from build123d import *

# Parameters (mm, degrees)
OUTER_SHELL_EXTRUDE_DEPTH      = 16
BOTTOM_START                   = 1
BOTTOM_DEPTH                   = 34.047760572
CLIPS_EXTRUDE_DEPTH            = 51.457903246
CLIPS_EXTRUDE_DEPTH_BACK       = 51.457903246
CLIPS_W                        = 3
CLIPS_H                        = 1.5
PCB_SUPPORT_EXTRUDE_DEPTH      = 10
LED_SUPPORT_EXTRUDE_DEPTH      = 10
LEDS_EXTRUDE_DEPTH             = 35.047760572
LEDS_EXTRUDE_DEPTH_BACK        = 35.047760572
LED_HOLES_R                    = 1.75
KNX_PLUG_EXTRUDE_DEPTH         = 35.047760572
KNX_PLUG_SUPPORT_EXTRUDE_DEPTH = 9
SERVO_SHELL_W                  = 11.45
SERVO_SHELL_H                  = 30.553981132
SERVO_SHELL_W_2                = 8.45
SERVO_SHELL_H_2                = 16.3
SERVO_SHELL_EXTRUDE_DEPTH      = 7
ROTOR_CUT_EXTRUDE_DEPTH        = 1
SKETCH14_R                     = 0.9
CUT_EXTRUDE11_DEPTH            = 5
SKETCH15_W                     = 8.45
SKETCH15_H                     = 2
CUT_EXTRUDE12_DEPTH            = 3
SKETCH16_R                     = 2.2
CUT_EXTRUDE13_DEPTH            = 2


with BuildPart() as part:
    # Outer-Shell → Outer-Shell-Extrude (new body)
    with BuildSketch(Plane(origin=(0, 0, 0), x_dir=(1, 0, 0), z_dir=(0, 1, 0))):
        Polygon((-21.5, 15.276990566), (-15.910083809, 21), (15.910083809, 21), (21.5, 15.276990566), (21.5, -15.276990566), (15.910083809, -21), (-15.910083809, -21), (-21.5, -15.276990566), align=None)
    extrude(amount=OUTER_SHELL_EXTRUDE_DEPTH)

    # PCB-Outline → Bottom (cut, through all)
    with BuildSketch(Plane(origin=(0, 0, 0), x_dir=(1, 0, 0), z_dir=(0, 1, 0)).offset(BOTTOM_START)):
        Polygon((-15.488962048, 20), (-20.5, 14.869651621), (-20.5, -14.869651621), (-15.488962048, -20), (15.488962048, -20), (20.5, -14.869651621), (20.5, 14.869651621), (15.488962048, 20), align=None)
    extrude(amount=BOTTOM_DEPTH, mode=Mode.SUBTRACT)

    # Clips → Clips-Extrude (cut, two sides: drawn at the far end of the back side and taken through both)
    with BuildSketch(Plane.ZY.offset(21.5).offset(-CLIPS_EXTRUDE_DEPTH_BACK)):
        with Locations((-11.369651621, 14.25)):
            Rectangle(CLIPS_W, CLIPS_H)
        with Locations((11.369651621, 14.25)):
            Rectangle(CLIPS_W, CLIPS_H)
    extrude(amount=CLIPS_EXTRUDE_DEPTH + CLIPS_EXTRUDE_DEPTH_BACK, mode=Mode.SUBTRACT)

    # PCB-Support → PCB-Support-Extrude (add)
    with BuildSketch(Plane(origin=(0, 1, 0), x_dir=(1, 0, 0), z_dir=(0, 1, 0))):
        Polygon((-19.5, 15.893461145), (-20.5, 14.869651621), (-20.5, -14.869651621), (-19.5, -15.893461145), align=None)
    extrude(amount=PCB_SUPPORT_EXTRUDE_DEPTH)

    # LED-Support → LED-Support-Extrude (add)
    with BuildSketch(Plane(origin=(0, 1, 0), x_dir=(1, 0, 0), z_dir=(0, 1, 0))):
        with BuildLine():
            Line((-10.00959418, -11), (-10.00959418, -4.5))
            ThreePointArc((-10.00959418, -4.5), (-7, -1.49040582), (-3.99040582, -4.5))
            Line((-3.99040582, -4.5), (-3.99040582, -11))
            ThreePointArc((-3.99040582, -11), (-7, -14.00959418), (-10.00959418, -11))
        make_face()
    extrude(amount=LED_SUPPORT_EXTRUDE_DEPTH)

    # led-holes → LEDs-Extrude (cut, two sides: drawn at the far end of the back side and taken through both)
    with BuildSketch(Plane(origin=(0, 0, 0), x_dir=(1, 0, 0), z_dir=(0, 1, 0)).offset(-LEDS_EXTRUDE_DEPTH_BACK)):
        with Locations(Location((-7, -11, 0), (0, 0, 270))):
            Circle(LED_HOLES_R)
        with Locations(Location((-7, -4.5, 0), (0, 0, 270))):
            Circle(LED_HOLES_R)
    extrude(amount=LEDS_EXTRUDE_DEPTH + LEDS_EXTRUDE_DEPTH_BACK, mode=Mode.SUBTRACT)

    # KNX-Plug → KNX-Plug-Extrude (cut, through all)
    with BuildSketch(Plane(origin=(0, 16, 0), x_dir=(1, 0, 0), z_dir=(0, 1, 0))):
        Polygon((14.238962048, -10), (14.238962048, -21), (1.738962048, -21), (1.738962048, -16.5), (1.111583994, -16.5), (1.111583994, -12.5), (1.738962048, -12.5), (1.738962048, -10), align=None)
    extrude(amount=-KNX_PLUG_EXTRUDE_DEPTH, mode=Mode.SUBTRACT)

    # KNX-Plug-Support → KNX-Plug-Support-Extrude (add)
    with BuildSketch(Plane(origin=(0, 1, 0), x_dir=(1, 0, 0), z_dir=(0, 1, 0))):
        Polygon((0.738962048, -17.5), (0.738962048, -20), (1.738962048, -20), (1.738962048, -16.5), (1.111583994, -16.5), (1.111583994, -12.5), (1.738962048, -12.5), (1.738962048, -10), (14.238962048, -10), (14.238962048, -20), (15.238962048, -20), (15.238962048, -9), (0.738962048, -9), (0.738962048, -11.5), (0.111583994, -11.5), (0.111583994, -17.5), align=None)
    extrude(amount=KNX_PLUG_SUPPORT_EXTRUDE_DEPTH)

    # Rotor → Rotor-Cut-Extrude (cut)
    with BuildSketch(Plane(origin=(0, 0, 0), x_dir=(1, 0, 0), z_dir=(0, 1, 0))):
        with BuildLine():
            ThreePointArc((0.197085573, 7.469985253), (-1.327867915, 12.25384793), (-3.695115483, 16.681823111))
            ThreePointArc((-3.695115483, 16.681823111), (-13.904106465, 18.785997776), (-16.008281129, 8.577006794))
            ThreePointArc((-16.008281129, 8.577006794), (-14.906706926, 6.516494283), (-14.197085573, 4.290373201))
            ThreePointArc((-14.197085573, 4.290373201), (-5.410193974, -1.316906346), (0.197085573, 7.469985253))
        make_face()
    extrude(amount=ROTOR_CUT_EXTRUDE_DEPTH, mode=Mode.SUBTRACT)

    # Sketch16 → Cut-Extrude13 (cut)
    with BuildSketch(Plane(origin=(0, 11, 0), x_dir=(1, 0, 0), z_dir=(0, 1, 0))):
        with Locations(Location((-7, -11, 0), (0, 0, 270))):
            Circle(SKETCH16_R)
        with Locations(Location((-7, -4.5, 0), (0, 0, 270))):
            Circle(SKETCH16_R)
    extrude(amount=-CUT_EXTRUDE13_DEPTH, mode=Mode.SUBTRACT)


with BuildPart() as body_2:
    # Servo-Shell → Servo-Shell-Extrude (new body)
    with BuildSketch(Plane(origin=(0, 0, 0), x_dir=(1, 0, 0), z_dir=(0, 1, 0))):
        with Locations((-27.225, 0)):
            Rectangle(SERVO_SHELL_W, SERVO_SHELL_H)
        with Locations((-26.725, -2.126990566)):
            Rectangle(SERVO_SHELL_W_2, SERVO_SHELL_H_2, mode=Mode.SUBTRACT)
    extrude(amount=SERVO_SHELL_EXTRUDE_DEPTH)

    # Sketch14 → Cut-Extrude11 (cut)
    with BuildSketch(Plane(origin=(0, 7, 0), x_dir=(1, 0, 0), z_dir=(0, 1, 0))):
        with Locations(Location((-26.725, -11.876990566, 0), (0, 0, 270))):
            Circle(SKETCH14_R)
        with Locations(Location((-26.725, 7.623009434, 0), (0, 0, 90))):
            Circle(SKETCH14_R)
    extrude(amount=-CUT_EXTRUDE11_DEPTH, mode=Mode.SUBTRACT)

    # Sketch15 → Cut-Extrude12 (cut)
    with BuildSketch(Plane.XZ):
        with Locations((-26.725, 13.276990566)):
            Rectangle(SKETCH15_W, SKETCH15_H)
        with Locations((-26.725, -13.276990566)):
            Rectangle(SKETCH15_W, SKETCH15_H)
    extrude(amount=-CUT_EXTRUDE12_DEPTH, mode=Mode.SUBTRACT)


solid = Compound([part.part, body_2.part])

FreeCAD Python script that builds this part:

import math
import FreeCAD as App
import Part
import Sketcher
Q = App.Units.Quantity


def add_polygon(sketch, points):
    """Adds a closed chain of lines whose ends are joined by coincident constraints."""
    first, n = sketch.GeometryCount, len(points)
    for a, b in zip(points, points[1:] + points[:1]):
        sketch.addGeometry(Part.LineSegment(App.Vector(*a, 0), App.Vector(*b, 0)), False)
    for i in range(n):
        sketch.addConstraint(Sketcher.Constraint("Coincident", first + i, 2, first + (i + 1) % n, 1))

doc = App.newDocument("Part")
body = doc.addObject("PartDesign::Body", "Body")

sketch1 = doc.addObject("Sketcher::SketchObject", "Sketch")
body.addObject(sketch1)
sketch1.AttachmentSupport = (doc.XZ_Plane, [""])
sketch1.MapMode = "FlatFace"
add_polygon(sketch1, [(-16, -21), (-22, -15), (-22, 15), (-16, 21), (16, 21), (22, 15), (22, -15), (16, -21)])
sketch1.addConstraint([
    Sketcher.Constraint("Vertical", 1),
    Sketcher.Constraint("Horizontal", 3),
    Sketcher.Constraint("Vertical", 5),
    Sketcher.Constraint("Horizontal", 7),
    Sketcher.Constraint("Symmetric", 0, 2, 4, 2, -1, 1),
    Sketcher.Constraint("Symmetric", 2, 2, 6, 2, -1, 1),
    Sketcher.Constraint("Parallel", 0, 4),
    Sketcher.Constraint("Parallel", 2, 6),
    Sketcher.Constraint("Horizontal", 1, 2, 4, 2),
    Sketcher.Constraint("Vertical", 3, 2, 6, 2),
    Sketcher.Constraint("Distance", 0, Q("8 mm")),
    Sketcher.Constraint("DistanceY", -1, 1, 2, 2, Q("21 mm")),
    Sketcher.Constraint("DistanceX", 1, 2, 4, 2, Q("43 mm")),
    Sketcher.Constraint("DistanceY", 1, 1, 1, 2, Q("30.553981 mm")),
])
pad1 = doc.addObject("PartDesign::Pad", "Pad")
body.addObject(pad1)
pad1.Profile = sketch1
pad1.Length = 16
pad1.Reversed = True

sketch2 = doc.addObject("Sketcher::SketchObject", "Sketch001")
body.addObject(sketch2)
sketch2.AttachmentSupport = (doc.XZ_Plane, [""])
sketch2.MapMode = "FlatFace"
sketch2.AttachmentOffset = App.Placement(App.Vector(0, 0, -1), App.Rotation())
add_polygon(sketch2, [(-15, -20), (-20, -15), (-20, 15), (-15, 20), (15, 20), (20, 15), (20, -15), (15, -20)])
sketch2.addConstraint([
    Sketcher.Constraint("Vertical", 1),
    Sketcher.Constraint("Horizontal", 3),
    Sketcher.Constraint("Vertical", 5),
    Sketcher.Constraint("Horizontal", 7),
    Sketcher.Constraint("Symmetric", 0, 2, 4, 2, -1, 1),
    Sketcher.Constraint("Symmetric", 2, 2, 6, 2, -1, 1),
    Sketcher.Constraint("Parallel", 0, 4),
    Sketcher.Constraint("Parallel", 2, 6),
    Sketcher.Constraint("Horizontal", 1, 2, 4, 2),
    Sketcher.Constraint("Vertical", 3, 2, 6, 2),
    Sketcher.Constraint("DistanceY", -1, 1, 2, 2, Q("20 mm")),
    Sketcher.Constraint("DistanceX", 1, 2, 4, 2, Q("41 mm")),
    Sketcher.Constraint("Distance", 0, Q("7.171539 mm")),
    Sketcher.Constraint("DistanceX", 3, 1, 3, 2, Q("30.977924 mm")),
])
pocket1 = doc.addObject("PartDesign::Pocket", "Pocket")
body.addObject(pocket1)
pocket1.Profile = sketch2
pocket1.Type = "ThroughAll"

sketch3 = doc.addObject("Sketcher::SketchObject", "Sketch002")
body.addObject(sketch3)
sketch3.AttachmentSupport = (doc.YZ_Plane, [""])
sketch3.MapMode = "FlatFace"
sketch3.AttachmentOffset = App.Placement(App.Vector(0, 0, -21.5), App.Rotation())
add_polygon(sketch3, [(15, -12.9), (13.5, -12.9), (13.5, -9.9), (15, -9.9)])
add_polygon(sketch3, [(15, 9.9), (13.5, 9.9), (13.5, 12.9), (15, 12.9)])
sketch3.addConstraint([
    Sketcher.Constraint("Horizontal", 0),
    Sketcher.Constraint("Vertical", 1),
    Sketcher.Constraint("Horizontal", 2),
    Sketcher.Constraint("Vertical", 3),
    Sketcher.Constraint("Horizontal", 4),
    Sketcher.Constraint("Vertical", 5),
    Sketcher.Constraint("Horizontal", 6),
    Sketcher.Constraint("Vertical", 7),
    Sketcher.Constraint("Symmetric", 1, 2, 4, 2, -1),
    Sketcher.Constraint("Symmetric", 3, 2, 6, 2, -1),
    Sketcher.Constraint("DistanceY", 1, 1, 1, 2, Q("3 mm")),
    Sketcher.Constraint("DistanceX", 0, 2, 0, 1, Q("1.5 mm")),
    Sketcher.Constraint("DistanceX", -1, 1, 2, 2, Q("15 mm")),
    Sketcher.Constraint("DistanceY", 0, 2, -1, 1, Q("12.869652 mm")),
])
pocket2 = doc.addObject("PartDesign::Pocket", "Pocket001")
body.addObject(pocket2)
pocket2.Profile = sketch3
pocket2.Type = "ThroughAll"
pocket2.Midplane = True

sketch4 = doc.addObject("Sketcher::SketchObject", "Sketch003")
body.addObject(sketch4)
sketch4.AttachmentSupport = (doc.XZ_Plane, [""])
sketch4.MapMode = "FlatFace"
sketch4.AttachmentOffset = App.Placement(App.Vector(0, 0, -1), App.Rotation())
add_polygon(sketch4, [(-19.5, -15.9), (-20.5, -14.9), (-20.5, 14.9), (-19.5, 15.9)])
sketch4.addConstraint([
    Sketcher.Constraint("Vertical", 1),
    Sketcher.Constraint("Vertical", 3),
    Sketcher.Constraint("Equal", 0, 2),
    Sketcher.Constraint("DistanceX", 1, 2, 2, 2, Q("1 mm")),
    Sketcher.Constraint("DistanceX", 0, 2, -1, 1, Q("20.5 mm")),
    Sketcher.Constraint("Distance", 0, Q("1.431148 mm")),
    Sketcher.Constraint("DistanceY", 1, 1, 1, 2, Q("29.739303 mm")),
    Sketcher.Constraint("DistanceY", 0, 2, -1, 1, Q("14.869652 mm")),
])
pad2 = doc.addObject("PartDesign::Pad", "Pad001")
body.addObject(pad2)
pad2.Profile = sketch4
pad2.Length = 10
pad2.Reversed = True

sketch5 = doc.addObject("Sketcher::SketchObject", "Sketch004")
body.addObject(sketch5)
sketch5.AttachmentSupport = (doc.XZ_Plane, [""])
sketch5.MapMode = "FlatFace"
sketch5.AttachmentOffset = App.Placement(App.Vector(0, 0, -1), App.Rotation())
sketch5.addGeometry([
    Part.LineSegment(App.Vector(-10, 4.5, 0), App.Vector(-10, 11, 0)),
    Part.ArcOfCircle(Part.Circle(App.Vector(-7, 11, 0), App.Vector(0, 0, 1), 3), math.radians(0), math.radians(180)),
    Part.LineSegment(App.Vector(-4, 11, 0), App.Vector(-4, 4.5, 0)),
    Part.ArcOfCircle(Part.Circle(App.Vector(-7, 4.5, 0), App.Vector(0, 0, 1), 3), math.radians(180), math.radians(360)),
], False)
sketch5.addConstraint([
    Sketcher.Constraint("Tangent", 0, 2, 1, 2),
    Sketcher.Constraint("Tangent", 1, 1, 2, 1),
    Sketcher.Constraint("Tangent", 2, 2, 3, 2),
    Sketcher.Constraint("Tangent", 3, 1, 0, 1),
    Sketcher.Constraint("Vertical", 0),
    Sketcher.Constraint("Vertical", 2),
    Sketcher.Constraint("DistanceY", 0, 1, 0, 2, Q("6.5 mm")),
    Sketcher.Constraint("DistanceX", 1, 3, -1, 1, Q("7 mm")),
    Sketcher.Constraint("DistanceY", -1, 1, 1, 3, Q("11 mm")),
    Sketcher.Constraint("Radius", 1, Q("3.009594 mm")),
])
pad3 = doc.addObject("PartDesign::Pad", "Pad002")
body.addObject(pad3)
pad3.Profile = sketch5
pad3.Length = 10
pad3.Reversed = True

sketch6 = doc.addObject("Sketcher::SketchObject", "Sketch005")
body.addObject(sketch6)
sketch6.AttachmentSupport = (doc.XZ_Plane, [""])
sketch6.MapMode = "FlatFace"
sketch6.addGeometry([
    Part.Circle(App.Vector(-7, 11, 0), App.Vector(0, 0, 1), 1.8),
    Part.Circle(App.Vector(-7, 4.5, 0), App.Vector(0, 0, 1), 1.8),
], False)
sketch6.addConstraint([
    Sketcher.Constraint("Equal", 0, 1),
    Sketcher.Constraint("Vertical", 0, 3, 1, 3),
    Sketcher.Constraint("Diameter", 0, Q("3.5 mm")),
    Sketcher.Constraint("DistanceX", 0, 3, -1, 1, Q("7 mm")),
    Sketcher.Constraint("DistanceY", -1, 1, 0, 3, Q("11 mm")),
    Sketcher.Constraint("DistanceY", -1, 1, 1, 3, Q("4.5 mm")),
])
pocket3 = doc.addObject("PartDesign::Pocket", "Pocket002")
body.addObject(pocket3)
pocket3.Profile = sketch6
pocket3.Type = "ThroughAll"
pocket3.Midplane = True

sketch7 = doc.addObject("Sketcher::SketchObject", "Sketch006")
body.addObject(sketch7)
sketch7.AttachmentSupport = (doc.XZ_Plane, [""])
sketch7.MapMode = "FlatFace"
sketch7.AttachmentOffset = App.Placement(App.Vector(0, 0, -16), App.Rotation())
add_polygon(sketch7, [(14.2, 21), (14.2, 10), (1.7, 10), (1.7, 12.5), (1.1, 12.5), (1.1, 16.5), (1.7, 16.5), (1.7, 21)])
sketch7.addConstraint([
    Sketcher.Constraint("Vertical", 0),
    Sketcher.Constraint("Horizontal", 1),
    Sketcher.Constraint("Vertical", 2),
    Sketcher.Constraint("Horizontal", 3),
    Sketcher.Constraint("Vertical", 4),
    Sketcher.Constraint("Horizontal", 5),
    Sketcher.Constraint("Vertical", 6),
    Sketcher.Constraint("Horizontal", 7),
    Sketcher.Constraint("Vertical", 2, 2, 5, 2),
    Sketcher.Constraint("DistanceY", 0, 2, 0, 1, Q("11 mm")),
    Sketcher.Constraint("DistanceY", 4, 1, 4, 2, Q("4 mm")),
    Sketcher.Constraint("DistanceX", 1, 2, 1, 1, Q("12.5 mm")),
    Sketcher.Constraint("DistanceY", 2, 1, 2, 2, Q("2.5 mm")),
    Sketcher.Constraint("DistanceY", -1, 1, 0, 2, Q("10 mm")),
    Sketcher.Constraint("DistanceX", 3, 2, 3, 1, Q("0.627378 mm")),
    Sketcher.Constraint("DistanceX", -1, 1, 0, 2, Q("14.238962 mm")),
])
pocket4 = doc.addObject("PartDesign::Pocket", "Pocket003")
body.addObject(pocket4)
pocket4.Profile = sketch7
pocket4.Type = "ThroughAll"
pocket4.Reversed = True

sketch8 = doc.addObject("Sketcher::SketchObject", "Sketch007")
body.addObject(sketch8)
sketch8.AttachmentSupport = (doc.XZ_Plane, [""])
sketch8.MapMode = "FlatFace"
sketch8.AttachmentOffset = App.Placement(App.Vector(0, 0, -1), App.Rotation())
add_polygon(sketch8, [(0.7, 17.5), (0.7, 20), (1.7, 20), (1.7, 16.5), (1.1, 16.5), (1.1, 12.5), (1.7, 12.5), (1.7, 10), (14.2, 10), (14.2, 20), (15.2, 20), (15.2, 9), (0.7, 9), (0.7, 11.5), (0.1, 11.5), (0.1, 17.5)])
sketch8.addConstraint([
    Sketcher.Constraint("Vertical", 0),
    Sketcher.Constraint("Horizontal", 1),
    Sketcher.Constraint("Vertical", 2),
    Sketcher.Constraint("Horizontal", 3),
    Sketcher.Constraint("Vertical", 4),
    Sketcher.Constraint("Horizontal", 5),
    Sketcher.Constraint("Vertical", 6),
    Sketcher.Constraint("Horizontal", 7),
    Sketcher.Constraint("Vertical", 8),
    Sketcher.Constraint("Horizontal", 9),
    Sketcher.Constraint("Vertical", 10),
    Sketcher.Constraint("Horizontal", 11),
    Sketcher.Constraint("Vertical", 12),
    Sketcher.Constraint("Horizontal", 13),
    Sketcher.Constraint("Vertical", 14),
    Sketcher.Constraint("Horizontal", 15),
    Sketcher.Constraint("Horizontal", 1, 2, 8, 2),
    Sketcher.Constraint("Vertical", 2, 2, 5, 2),
    Sketcher.Constraint("Vertical", 0, 2, 11, 2),
    Sketcher.Constraint("Equal", 1, 9),
    Sketcher.Constraint("Equal", 5, 13),
    Sketcher.Constraint("Equal", 0, 6),
    Sketcher.Constraint("Equal", 6, 12),
    Sketcher.Constraint("DistanceX", 1, 1, 1, 2, Q("1 mm")),
    Sketcher.Constraint("DistanceY", 4, 2, 4, 1, Q("4 mm")),
    Sketcher.Constraint("DistanceY", 8, 1, 8, 2, Q("10 mm")),
    Sketcher.Constraint("DistanceY", 10, 2, 10, 1, Q("11 mm")),
    Sketcher.Constraint("DistanceY", 14, 1, 14, 2, Q("6 mm")),
    Sketcher.Constraint("DistanceX", 7, 1, 7, 2, Q("12.5 mm")),
    Sketcher.Constraint("DistanceY", -1, 1, 0, 2, Q("20 mm")),
    Sketcher.Constraint("DistanceX", 3, 2, 3, 1, Q("0.627378 mm")),
    Sketcher.Constraint("DistanceX", -1, 1, 0, 2, Q("0.738962 mm")),
])
pad4 = doc.addObject("PartDesign::Pad", "Pad003")
body.addObject(pad4)
pad4.Profile = sketch8
pad4.Length = 9
pad4.Reversed = True

sketch9 = doc.addObject("Sketcher::SketchObject", "Sketch008")
body.addObject(sketch9)
sketch9.AttachmentSupport = (doc.XZ_Plane, [""])
sketch9.MapMode = "FlatFace"
sketch9.addGeometry([
    Part.ArcOfCircle(Part.Circle(App.Vector(-26.7, -1.5, 0), App.Vector(0, 0, 1), 27.6), math.radians(-33), math.radians(-12)),
    Part.ArcOfCircle(Part.Circle(App.Vector(-9.9, -12.6, 0), App.Vector(0, 0, 1), 7.4), math.radians(147), math.radians(327)),
    Part.ArcOfCircle(Part.Circle(App.Vector(-26.7, -1.5, 0), App.Vector(0, 0, 1), 12.8), math.radians(-33), math.radians(-12)),
    Part.ArcOfCircle(Part.Circle(App.Vector(-7, -5.9, 0), App.Vector(0, 0, 1), 7.4), math.radians(-12), math.radians(168)),
], False)
sketch9.addConstraint([
    Sketcher.Constraint("Tangent", 0, 1, 1, 2),
    Sketcher.Constraint("Tangent", 1, 1, 2, 1),
    Sketcher.Constraint("Tangent", 2, 2, 3, 2),
    Sketcher.Constraint("Tangent", 3, 1, 0, 2),
    Sketcher.Constraint("Coincident", 2, 3, 0, 3),
    Sketcher.Constraint("DistanceX", 3, 3, -1, 1, Q("7 mm")),
    Sketcher.Constraint("DistanceX", 0, 3, -1, 1, Q("26.725 mm")),
    Sketcher.Constraint("Radius", 0, Q("27.571094 mm")),
    Sketcher.Constraint("Radius", 1, Q("7.370585 mm")),
    Sketcher.Constraint("DistanceX", 1, 3, -1, 1, Q("9.851698 mm")),
    Sketcher.Constraint("DistanceY", 0, 3, -1, 1, Q("1.523009 mm")),
])
pocket5 = doc.addObject("PartDesign::Pocket", "Pocket004")
body.addObject(pocket5)
pocket5.Profile = sketch9
pocket5.Length = 1

sketch10 = doc.addObject("Sketcher::SketchObject", "Sketch009")
body.addObject(sketch10)
sketch10.AttachmentSupport = (doc.XZ_Plane, [""])
sketch10.MapMode = "FlatFace"
sketch10.AttachmentOffset = App.Placement(App.Vector(0, 0, -11), App.Rotation())
sketch10.addGeometry([
    Part.Circle(App.Vector(-7, 11, 0), App.Vector(0, 0, 1), 2.2),
    Part.Circle(App.Vector(-7, 4.5, 0), App.Vector(0, 0, 1), 2.2),
], False)
sketch10.addConstraint([
    Sketcher.Constraint("Equal", 0, 1),
    Sketcher.Constraint("Vertical", 0, 3, 1, 3),
    Sketcher.Constraint("Diameter", 0, Q("4.4 mm")),
    Sketcher.Constraint("DistanceX", 0, 3, -1, 1, Q("7 mm")),
    Sketcher.Constraint("DistanceY", -1, 1, 0, 3, Q("11 mm")),
    Sketcher.Constraint("DistanceY", -1, 1, 1, 3, Q("4.5 mm")),
])
pocket6 = doc.addObject("PartDesign::Pocket", "Pocket005")
body.addObject(pocket6)
pocket6.Profile = sketch10
pocket6.Length = 2
pocket6.Reversed = True
body2 = doc.addObject("PartDesign::Body", "Body001")

sketch11 = doc.addObject("Sketcher::SketchObject", "Sketch010")
body2.addObject(sketch11)
sketch11.AttachmentSupport = (doc.getObject("XZ_Plane001"), [""])
sketch11.MapMode = "FlatFace"
add_polygon(sketch11, [(-33, -15), (-33, 15), (-22, 15), (-22, -15)])
add_polygon(sketch11, [(-22, 10), (-31, 10), (-31, -6), (-22, -6)])
sketch11.addConstraint([
    Sketcher.Constraint("Vertical", 0),
    Sketcher.Constraint("Horizontal", 1),
    Sketcher.Constraint("Vertical", 2),
    Sketcher.Constraint("Horizontal", 3),
    Sketcher.Constraint("Horizontal", 4),
    Sketcher.Constraint("Vertical", 5),
    Sketcher.Constraint("Horizontal", 6),
    Sketcher.Constraint("Vertical", 7),
    Sketcher.Constraint("DistanceY", 5, 2, 5, 1, Q("16.3 mm")),
    Sketcher.Constraint("DistanceX", 0, 2, 4, 2, Q("2 mm")),
    Sketcher.Constraint("DistanceY", 4, 2, 0, 2, Q("5 mm")),
    Sketcher.Constraint("DistanceX", 6, 2, 2, 2, Q("1 mm")),
    Sketcher.Constraint("DistanceX", 1, 1, 1, 2, Q("11.45 mm")),
    Sketcher.Constraint("DistanceX", 1, 2, -1, 1, Q("21.5 mm")),
    Sketcher.Constraint("DistanceY", 0, 1, 0, 2, Q("30.553981 mm")),
    Sketcher.Constraint("DistanceY", -1, 1, 0, 2, Q("15.276991 mm")),
])
pad5 = doc.addObject("PartDesign::Pad", "Pad004")
body2.addObject(pad5)
pad5.Profile = sketch11
pad5.Length = 7
pad5.Reversed = True

sketch12 = doc.addObject("Sketcher::SketchObject", "Sketch011")
body2.addObject(sketch12)
sketch12.AttachmentSupport = (doc.getObject("XZ_Plane001"), [""])
sketch12.MapMode = "FlatFace"
sketch12.AttachmentOffset = App.Placement(App.Vector(0, 0, -7), App.Rotation())
sketch12.addGeometry([
    Part.Circle(App.Vector(-26.7, 11.9, 0), App.Vector(0, 0, 1), 0.9),
    Part.Circle(App.Vector(-26.7, -7.6, 0), App.Vector(0, 0, 1), 0.9),
], False)
sketch12.addConstraint([
    Sketcher.Constraint("Equal", 0, 1),
    Sketcher.Constraint("Vertical", 0, 3, 1, 3),
    Sketcher.Constraint("Diameter", 0, Q("1.8 mm")),
    Sketcher.Constraint("DistanceY", 1, 3, 0, 3, Q("19.5 mm")),
    Sketcher.Constraint("DistanceX", 0, 3, -1, 1, Q("26.725 mm")),
    Sketcher.Constraint("DistanceY", -1, 1, 0, 3, Q("11.876991 mm")),
])
pocket7 = doc.addObject("PartDesign::Pocket", "Pocket006")
body2.addObject(pocket7)
pocket7.Profile = sketch12
pocket7.Length = 5
pocket7.Reversed = True

sketch13 = doc.addObject("Sketcher::SketchObject", "Sketch012")
body2.addObject(sketch13)
sketch13.AttachmentSupport = (doc.getObject("XZ_Plane001"), [""])
sketch13.MapMode = "FlatFace"
add_polygon(sketch13, [(-30.9, 14.3), (-30.9, 12.3), (-22.5, 12.3), (-22.5, 14.3)])
add_polygon(sketch13, [(-30.9, -12.3), (-30.9, -14.3), (-22.5, -14.3), (-22.5, -12.3)])
sketch13.addConstraint([
    Sketcher.Constraint("Vertical", 0),
    Sketcher.Constraint("Horizontal", 1),
    Sketcher.Constraint("Vertical", 2),
    Sketcher.Constraint("Horizontal", 3),
    Sketcher.Constraint("Vertical", 4),
    Sketcher.Constraint("Horizontal", 5),
    Sketcher.Constraint("Vertical", 6),
    Sketcher.Constraint("Horizontal", 7),
    Sketcher.Constraint("Symmetric", 3, 2, 4, 2, -1),
    Sketcher.Constraint("Symmetric", 1, 2, 6, 2, -1),
    Sketcher.Constraint("DistanceY", 0, 2, 0, 1, Q("2 mm")),
    Sketcher.Constraint("DistanceX", 1, 1, 1, 2, Q("8.45 mm")),
    Sketcher.Constraint("DistanceX", 1, 2, -1, 1, Q("22.5 mm")),
    Sketcher.Constraint("DistanceY", -1, 1, 0, 2, Q("12.276991 mm")),
])
pocket8 = doc.addObject("PartDesign::Pocket", "Pocket007")
body2.addObject(pocket8)
pocket8.Profile = sketch13
pocket8.Length = 3

doc.recompute()
